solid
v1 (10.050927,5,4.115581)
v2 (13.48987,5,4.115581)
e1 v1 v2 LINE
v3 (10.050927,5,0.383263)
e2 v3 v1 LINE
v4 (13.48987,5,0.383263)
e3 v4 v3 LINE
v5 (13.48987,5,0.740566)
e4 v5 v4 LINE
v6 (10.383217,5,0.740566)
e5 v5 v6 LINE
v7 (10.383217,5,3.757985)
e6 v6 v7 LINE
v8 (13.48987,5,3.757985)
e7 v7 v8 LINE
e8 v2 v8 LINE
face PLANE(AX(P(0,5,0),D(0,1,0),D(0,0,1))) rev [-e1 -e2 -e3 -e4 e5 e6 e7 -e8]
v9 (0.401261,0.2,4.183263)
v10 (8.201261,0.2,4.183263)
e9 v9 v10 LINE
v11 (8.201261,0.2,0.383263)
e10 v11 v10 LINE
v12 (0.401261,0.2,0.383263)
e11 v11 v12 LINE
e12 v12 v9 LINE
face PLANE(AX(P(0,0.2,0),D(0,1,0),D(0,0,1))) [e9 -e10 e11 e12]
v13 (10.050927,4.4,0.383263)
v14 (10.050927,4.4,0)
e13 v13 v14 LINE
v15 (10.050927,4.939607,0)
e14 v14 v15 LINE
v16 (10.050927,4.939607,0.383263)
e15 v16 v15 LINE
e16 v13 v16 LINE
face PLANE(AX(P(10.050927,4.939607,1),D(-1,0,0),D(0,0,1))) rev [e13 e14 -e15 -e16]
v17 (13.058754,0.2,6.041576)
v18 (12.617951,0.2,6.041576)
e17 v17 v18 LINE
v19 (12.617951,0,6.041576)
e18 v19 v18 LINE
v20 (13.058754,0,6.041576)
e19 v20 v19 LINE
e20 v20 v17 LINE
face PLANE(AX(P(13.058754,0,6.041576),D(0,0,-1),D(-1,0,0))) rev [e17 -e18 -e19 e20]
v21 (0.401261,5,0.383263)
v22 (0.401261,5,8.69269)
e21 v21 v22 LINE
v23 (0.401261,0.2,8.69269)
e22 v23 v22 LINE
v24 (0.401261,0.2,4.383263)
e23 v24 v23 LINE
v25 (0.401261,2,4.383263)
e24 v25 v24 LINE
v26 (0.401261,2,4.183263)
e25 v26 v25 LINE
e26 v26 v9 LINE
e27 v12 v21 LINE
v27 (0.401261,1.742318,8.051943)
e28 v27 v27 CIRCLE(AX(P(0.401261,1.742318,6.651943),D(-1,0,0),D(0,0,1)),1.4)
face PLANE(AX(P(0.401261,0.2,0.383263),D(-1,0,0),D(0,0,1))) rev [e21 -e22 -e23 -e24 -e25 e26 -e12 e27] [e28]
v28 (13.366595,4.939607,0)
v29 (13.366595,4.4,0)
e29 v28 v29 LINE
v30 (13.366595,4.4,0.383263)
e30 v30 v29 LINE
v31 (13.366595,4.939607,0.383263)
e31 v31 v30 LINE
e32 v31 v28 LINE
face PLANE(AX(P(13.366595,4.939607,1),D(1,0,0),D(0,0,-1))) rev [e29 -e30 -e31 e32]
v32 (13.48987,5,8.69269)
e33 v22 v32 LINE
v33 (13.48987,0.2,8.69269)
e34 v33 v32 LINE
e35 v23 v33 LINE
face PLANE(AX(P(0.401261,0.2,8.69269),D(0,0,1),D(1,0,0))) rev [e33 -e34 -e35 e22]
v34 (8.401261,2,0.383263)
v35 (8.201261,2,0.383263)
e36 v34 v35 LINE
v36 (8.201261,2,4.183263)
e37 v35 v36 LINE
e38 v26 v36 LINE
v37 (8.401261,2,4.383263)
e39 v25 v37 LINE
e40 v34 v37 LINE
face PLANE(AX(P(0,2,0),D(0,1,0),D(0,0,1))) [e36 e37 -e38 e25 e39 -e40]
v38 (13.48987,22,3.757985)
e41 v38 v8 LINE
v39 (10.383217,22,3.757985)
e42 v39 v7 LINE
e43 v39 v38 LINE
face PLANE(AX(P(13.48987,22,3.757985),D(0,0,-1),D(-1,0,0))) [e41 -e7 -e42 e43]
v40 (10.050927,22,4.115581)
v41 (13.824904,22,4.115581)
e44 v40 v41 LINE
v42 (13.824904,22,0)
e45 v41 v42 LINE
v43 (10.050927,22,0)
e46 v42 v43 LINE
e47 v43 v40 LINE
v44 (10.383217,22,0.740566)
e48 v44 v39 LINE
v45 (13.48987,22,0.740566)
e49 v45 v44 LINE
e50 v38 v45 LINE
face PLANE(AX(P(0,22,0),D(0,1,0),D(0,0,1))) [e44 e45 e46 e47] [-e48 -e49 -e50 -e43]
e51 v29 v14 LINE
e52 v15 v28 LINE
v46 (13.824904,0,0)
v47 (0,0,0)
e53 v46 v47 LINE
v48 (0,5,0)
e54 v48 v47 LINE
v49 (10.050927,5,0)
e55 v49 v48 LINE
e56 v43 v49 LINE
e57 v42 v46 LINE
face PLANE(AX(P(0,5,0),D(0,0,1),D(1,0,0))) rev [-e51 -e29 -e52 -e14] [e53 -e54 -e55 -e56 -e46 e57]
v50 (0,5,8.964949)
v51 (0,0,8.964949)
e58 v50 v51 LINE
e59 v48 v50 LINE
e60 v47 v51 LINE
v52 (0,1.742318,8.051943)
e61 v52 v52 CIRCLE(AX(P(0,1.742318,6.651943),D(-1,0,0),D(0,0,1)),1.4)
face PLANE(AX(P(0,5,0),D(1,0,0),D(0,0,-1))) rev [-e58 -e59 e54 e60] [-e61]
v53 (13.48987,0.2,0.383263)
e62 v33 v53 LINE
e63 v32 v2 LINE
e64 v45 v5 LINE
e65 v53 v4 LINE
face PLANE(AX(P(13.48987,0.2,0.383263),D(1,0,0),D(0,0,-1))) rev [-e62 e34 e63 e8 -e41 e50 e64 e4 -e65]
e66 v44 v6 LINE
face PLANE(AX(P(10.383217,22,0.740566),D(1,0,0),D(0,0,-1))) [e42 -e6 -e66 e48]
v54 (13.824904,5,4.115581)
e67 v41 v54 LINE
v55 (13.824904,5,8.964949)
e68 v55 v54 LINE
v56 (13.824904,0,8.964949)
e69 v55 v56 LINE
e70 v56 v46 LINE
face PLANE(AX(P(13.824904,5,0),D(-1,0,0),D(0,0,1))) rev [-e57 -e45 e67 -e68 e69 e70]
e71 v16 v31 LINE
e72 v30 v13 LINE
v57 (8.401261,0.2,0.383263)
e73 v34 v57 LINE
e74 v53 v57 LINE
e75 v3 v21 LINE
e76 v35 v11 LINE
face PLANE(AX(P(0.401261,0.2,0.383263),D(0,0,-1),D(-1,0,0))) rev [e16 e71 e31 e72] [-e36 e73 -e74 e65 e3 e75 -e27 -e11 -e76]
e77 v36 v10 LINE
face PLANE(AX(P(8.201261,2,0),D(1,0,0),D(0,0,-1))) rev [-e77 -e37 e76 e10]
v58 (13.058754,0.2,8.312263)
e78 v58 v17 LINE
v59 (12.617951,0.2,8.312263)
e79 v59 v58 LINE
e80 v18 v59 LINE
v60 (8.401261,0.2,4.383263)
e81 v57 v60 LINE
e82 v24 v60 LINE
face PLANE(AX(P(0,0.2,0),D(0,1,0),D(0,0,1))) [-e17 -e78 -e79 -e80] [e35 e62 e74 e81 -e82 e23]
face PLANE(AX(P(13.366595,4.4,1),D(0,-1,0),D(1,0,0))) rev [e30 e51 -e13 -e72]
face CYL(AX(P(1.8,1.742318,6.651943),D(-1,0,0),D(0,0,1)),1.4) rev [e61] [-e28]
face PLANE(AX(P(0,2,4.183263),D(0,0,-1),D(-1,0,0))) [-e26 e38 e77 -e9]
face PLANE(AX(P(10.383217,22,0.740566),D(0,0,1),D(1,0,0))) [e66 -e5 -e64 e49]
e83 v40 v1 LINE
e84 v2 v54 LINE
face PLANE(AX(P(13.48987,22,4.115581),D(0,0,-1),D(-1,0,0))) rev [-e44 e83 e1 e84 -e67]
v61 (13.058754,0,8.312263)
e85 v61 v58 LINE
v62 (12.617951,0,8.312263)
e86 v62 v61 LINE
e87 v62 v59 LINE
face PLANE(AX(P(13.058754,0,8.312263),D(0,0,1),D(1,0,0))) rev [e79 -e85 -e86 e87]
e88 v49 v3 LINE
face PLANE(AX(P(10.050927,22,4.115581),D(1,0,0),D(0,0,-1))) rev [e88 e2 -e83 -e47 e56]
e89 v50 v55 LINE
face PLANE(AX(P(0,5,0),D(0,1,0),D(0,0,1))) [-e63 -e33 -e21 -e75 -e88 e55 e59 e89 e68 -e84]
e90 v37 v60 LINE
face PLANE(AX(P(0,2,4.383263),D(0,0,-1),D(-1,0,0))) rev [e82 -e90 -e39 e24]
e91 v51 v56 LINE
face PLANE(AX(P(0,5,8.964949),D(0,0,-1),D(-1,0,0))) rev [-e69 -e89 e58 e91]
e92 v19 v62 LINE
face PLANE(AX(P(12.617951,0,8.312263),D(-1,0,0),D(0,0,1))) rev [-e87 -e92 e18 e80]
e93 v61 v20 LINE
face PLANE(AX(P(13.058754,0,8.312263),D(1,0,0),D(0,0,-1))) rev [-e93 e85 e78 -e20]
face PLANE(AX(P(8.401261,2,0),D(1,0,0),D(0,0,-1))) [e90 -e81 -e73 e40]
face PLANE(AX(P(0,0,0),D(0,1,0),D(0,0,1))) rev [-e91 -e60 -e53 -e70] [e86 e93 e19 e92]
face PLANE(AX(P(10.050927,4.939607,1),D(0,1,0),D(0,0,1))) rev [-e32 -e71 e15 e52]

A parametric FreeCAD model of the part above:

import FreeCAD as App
import Part
import Sketcher
from FreeCAD import Vector
Q = App.Units.Quantity

doc = App.newDocument("Part")
body = doc.addObject("PartDesign::Body", "Body")

sketch1 = body.newObject("Sketcher::SketchObject", "Sketch")
sketch1.AttachmentSupport = (doc.getObject("XZ_Plane"), [""])
sketch1.MapMode = "FlatFace"
sketch1.addGeometry([
    Part.LineSegment(Vector(0, 0, 0), Vector(0, 9, 0)),
    Part.LineSegment(Vector(0, 9, 0), Vector(14, 9, 0)),
    Part.LineSegment(Vector(14, 9, 0), Vector(14, 0, 0)),
    Part.LineSegment(Vector(14, 0, 0), Vector(0, 0, 0)),
], False)
sketch1.addConstraint([
    Sketcher.Constraint("Coincident", 0, 2, 1, 1),
    Sketcher.Constraint("Coincident", 1, 2, 2, 1),
    Sketcher.Constraint("Coincident", 2, 2, 3, 1),
    Sketcher.Constraint("Coincident", 3, 2, 0, 1),
    Sketcher.Constraint("Vertical", 0),
    Sketcher.Constraint("Horizontal", 1),
    Sketcher.Constraint("Vertical", 2),
    Sketcher.Constraint("Horizontal", 3),
    Sketcher.Constraint("Coincident", 3, 2, -1, 1),
    Sketcher.Constraint("DistanceY", 0, 1, 0, 2, Q("8.964949 mm")),
    Sketcher.Constraint("DistanceX", 1, 1, 1, 2, Q("13.824904 mm")),
])
pad1 = body.newObject("PartDesign::Pad", "Pad")
pad1.Profile = sketch1
pad1.Length = 5
pad1.Reversed = True

sketch2 = body.newObject("Sketcher::SketchObject", "Sketch001")
sketch2.AttachmentSupport = (doc.getObject("XZ_Plane"), [""])
sketch2.MapMode = "FlatFace"
sketch2.AttachmentOffset = App.Placement(Vector(0, 0, -5), App.Rotation())
sketch2.addGeometry([
    Part.LineSegment(Vector(0, 0, 0), Vector(0, 9, 0)),
    Part.LineSegment(Vector(0, 9, 0), Vector(13, 9, 0)),
    Part.LineSegment(Vector(13, 9, 0), Vector(13, 0, 0)),
    Part.LineSegment(Vector(13, 0, 0), Vector(0, 0, 0)),
], False)
sketch2.addConstraint([
    Sketcher.Constraint("Coincident", 0, 2, 1, 1),
    Sketcher.Constraint("Coincident", 1, 2, 2, 1),
    Sketcher.Constraint("Coincident", 2, 2, 3, 1),
    Sketcher.Constraint("Coincident", 3, 2, 0, 1),
    Sketcher.Constraint("Vertical", 0),
    Sketcher.Constraint("Horizontal", 1),
    Sketcher.Constraint("Vertical", 2),
    Sketcher.Constraint("Horizontal", 3),
    Sketcher.Constraint("DistanceX", 1, 1, 1, 2, Q("13.088609 mm")),
    Sketcher.Constraint("DistanceY", 0, 1, 0, 2, Q("8.309427 mm")),
    Sketcher.Constraint("DistanceX", -1, 1, 0, 2, Q("0.401261 mm")),
    Sketcher.Constraint("DistanceY", -1, 1, 0, 2, Q("8.69269 mm")),
])
pocket1 = body.newObject("PartDesign::Pocket", "Pocket")
pocket1.Profile = sketch2
pocket1.Length = 4.8
pocket1.Reversed = True

sketch3 = body.newObject("Sketcher::SketchObject", "Sketch002")
sketch3.AttachmentSupport = (doc.getObject("XZ_Plane"), [""])
sketch3.MapMode = "FlatFace"
sketch3.AttachmentOffset = App.Placement(Vector(0, 0, -0.2), App.Rotation())
sketch3.addGeometry([
    Part.LineSegment(Vector(8.4, 0.38, 0), Vector(8.2, 0.38, 0)),
    Part.LineSegment(Vector(8.2, 0.38, 0), Vector(8.2, 4.18, 0)),
    Part.LineSegment(Vector(8.2, 4.18, 0), Vector(0.4, 4.18, 0)),
    Part.LineSegment(Vector(0.4, 4.18, 0), Vector(0.4, 4.38, 0)),
    Part.LineSegment(Vector(0.4, 4.38, 0), Vector(8.4, 4.38, 0)),
    Part.LineSegment(Vector(8.4, 4.38, 0), Vector(8.4, 0.38, 0)),
], False)
sketch3.addConstraint([
    Sketcher.Constraint("Coincident", 0, 2, 1, 1),
    Sketcher.Constraint("Coincident", 1, 2, 2, 1),
    Sketcher.Constraint("Coincident", 2, 2, 3, 1),
    Sketcher.Constraint("Coincident", 3, 2, 4, 1),
    Sketcher.Constraint("Coincident", 4, 2, 5, 1),
    Sketcher.Constraint("Coincident", 5, 2, 0, 1),
    Sketcher.Constraint("Horizontal", 0),
    Sketcher.Constraint("Vertical", 1),
    Sketcher.Constraint("Horizontal", 2),
    Sketcher.Constraint("Vertical", 3),
    Sketcher.Constraint("Horizontal", 4),
    Sketcher.Constraint("Vertical", 5),
    Sketcher.Constraint("Equal", 0, 3),
    Sketcher.Constraint("DistanceX", 4, 1, 4, 2, Q("8 mm")),
    Sketcher.Constraint("DistanceY", 5, 2, 5, 1, Q("4 mm")),
    Sketcher.Constraint("DistanceX", 0, 2, 0, 1, Q("0.2 mm")),
    Sketcher.Constraint("DistanceX", -1, 1, 0, 2, Q("8.201261 mm")),
    Sketcher.Constraint("DistanceY", -1, 1, 0, 2, Q("0.383263 mm")),
])
pad2 = body.newObject("PartDesign::Pad", "Pad001")
pad2.Profile = sketch3
pad2.Length = 1.8
pad2.Reversed = True

sketch4 = body.newObject("Sketcher::SketchObject", "Sketch003")
sketch4.AttachmentSupport = (doc.getObject("YZ_Plane"), [""])
sketch4.MapMode = "FlatFace"
sketch4.addGeometry(Part.Circle(Vector(1.7, 6.7, 0), Vector(0, 0, 1), 1.4), False)
sketch4.addConstraint([
    Sketcher.Constraint("Diameter", 0, Q("2.8 mm")),
    Sketcher.Constraint("DistanceX", -1, 1, 0, 3, Q("1.742318 mm")),
    Sketcher.Constraint("DistanceY", -1, 1, 0, 3, Q("6.651943 mm")),
])
pocket2 = body.newObject("PartDesign::Pocket", "Pocket001")
pocket2.Profile = sketch4
pocket2.Length = 1.8
pocket2.Reversed = True

sketch5 = body.newObject("Sketcher::SketchObject", "Sketch004")
sketch5.AttachmentSupport = (doc.getObject("XZ_Plane"), [""])
sketch5.MapMode = "FlatFace"
sketch5.AttachmentOffset = App.Placement(Vector(0, 0, -0.2), App.Rotation())
sketch5.addGeometry([
    Part.LineSegment(Vector(12.62, 6.04, 0), Vector(12.62, 8.31, 0)),
    Part.LineSegment(Vector(12.62, 8.31, 0), Vector(13.06, 8.31, 0)),
    Part.LineSegment(Vector(13.06, 8.31, 0), Vector(13.06, 6.04, 0)),
    Part.LineSegment(Vector(13.06, 6.04, 0), Vector(12.62, 6.04, 0)),
], False)
sketch5.addConstraint([
    Sketcher.Constraint("Coincident", 0, 2, 1, 1),
    Sketcher.Constraint("Coincident", 1, 2, 2, 1),
    Sketcher.Constraint("Coincident", 2, 2, 3, 1),
    Sketcher.Constraint("Coincident", 3, 2, 0, 1),
    Sketcher.Constraint("Vertical", 0),
    Sketcher.Constraint("Horizontal", 1),
    Sketcher.Constraint("Vertical", 2),
    Sketcher.Constraint("Horizontal", 3),
    Sketcher.Constraint("DistanceX", 1, 1, 1, 2, Q("0.440803 mm")),
    Sketcher.Constraint("DistanceY", 0, 1, 0, 2, Q("2.270687 mm")),
    Sketcher.Constraint("DistanceX", -1, 1, 0, 2, Q("12.617951 mm")),
    Sketcher.Constraint("DistanceY", -1, 1, 0, 2, Q("8.312263 mm")),
])
pocket3 = body.newObject("PartDesign::Pocket", "Pocket002")
pocket3.Profile = sketch5
pocket3.Type = "ThroughAll"
pocket3.Reversed = True

sketch6 = body.newObject("Sketcher::SketchObject", "Sketch005")
sketch6.AttachmentSupport = (doc.getObject("XZ_Plane"), [""])
sketch6.MapMode = "FlatFace"
sketch6.AttachmentOffset = App.Placement(Vector(0, 0, -5), App.Rotation())
sketch6.addGeometry([
    Part.LineSegment(Vector(10.1, 4.1, 0), Vector(13.8, 4.1, 0)),
    Part.LineSegment(Vector(13.8, 4.1, 0), Vector(13.8, 0, 0)),
    Part.LineSegment(Vector(13.8, 0, 0), Vector(10.1, 0, 0)),
    Part.LineSegment(Vector(10.1, 0, 0), Vector(10.1, 4.1, 0)),
    Part.LineSegment(Vector(10.4, 3.8, 0), Vector(10.4, 0.7, 0)),
    Part.LineSegment(Vector(10.4, 0.7, 0), Vector(13.5, 0.7, 0)),
    Part.LineSegment(Vector(13.5, 0.7, 0), Vector(13.5, 3.8, 0)),
    Part.LineSegment(Vector(13.5, 3.8, 0), Vector(10.4, 3.8, 0)),
], False)
sketch6.addConstraint([
    Sketcher.Constraint("Coincident", 0, 2, 1, 1),
    Sketcher.Constraint("Coincident", 1, 2, 2, 1),
    Sketcher.Constraint("Coincident", 2, 2, 3, 1),
    Sketcher.Constraint("Coincident", 3, 2, 0, 1),
    Sketcher.Constraint("Coincident", 4, 2, 5, 1),
    Sketcher.Constraint("Coincident", 5, 2, 6, 1),
    Sketcher.Constraint("Coincident", 6, 2, 7, 1),
    Sketcher.Constraint("Coincident", 7, 2, 4, 1),
    Sketcher.Constraint("Horizontal", 0),
    Sketcher.Constraint("Vertical", 1),
    Sketcher.Constraint("Horizontal", 2),
    Sketcher.Constraint("Vertical", 3),
    Sketcher.Constraint("Vertical", 4),
    Sketcher.Constraint("Horizontal", 5),
    Sketcher.Constraint("Vertical", 6),
    Sketcher.Constraint("Horizontal", 7),
    Sketcher.Constraint("PointOnObject", 1, 2, -1),
    Sketcher.Constraint("DistanceY", 1, 2, 1, 1, Q("4.115581 mm")),
    Sketcher.Constraint("DistanceY", 4, 2, 4, 1, Q("3.017419 mm")),
    Sketcher.Constraint("DistanceX", 0, 1, 0, 2, Q("3.773977 mm")),
    Sketcher.Constraint("DistanceX", 5, 1, 5, 2, Q("3.106653 mm")),
    Sketcher.Constraint("DistanceX", -1, 1, 5, 2, Q("13.48987 mm")),
    Sketcher.Constraint("DistanceX", 2, 2, 4, 2, Q("0.33229 mm")),
    Sketcher.Constraint("DistanceY", -1, 1, 4, 2, Q("0.740566 mm")),
])
pad3 = body.newObject("PartDesign::Pad", "Pad002")
pad3.Profile = sketch6
pad3.Length = 17
pad3.Reversed = True

sketch7 = body.newObject("Sketcher::SketchObject", "Sketch006")
sketch7.AttachmentSupport = (doc.getObject("XY_Plane"), [""])
sketch7.MapMode = "FlatFace"
sketch7.addGeometry([
    Part.LineSegment(Vector(13.4, 4.9, 0), Vector(13.4, 4.4, 0)),
    Part.LineSegment(Vector(13.4, 4.4, 0), Vector(10.1, 4.4, 0)),
    Part.LineSegment(Vector(10.1, 4.4, 0), Vector(10.1, 4.9, 0)),
    Part.LineSegment(Vector(10.1, 4.9, 0), Vector(13.4, 4.9, 0)),
], False)
sketch7.addConstraint([
    Sketcher.Constraint("Coincident", 0, 2, 1, 1),
    Sketcher.Constraint("Coincident", 1, 2, 2, 1),
    Sketcher.Constraint("Coincident", 2, 2, 3, 1),
    Sketcher.Constraint("Coincident", 3, 2, 0, 1),
    Sketcher.Constraint("Vertical", 0),
    Sketcher.Constraint("Horizontal", 1),
    Sketcher.Constraint("Vertical", 2),
    Sketcher.Constraint("Horizontal", 3),
    Sketcher.Constraint("DistanceY", -1, 1, 0, 2, Q("4.4 mm")),
    Sketcher.Constraint("DistanceX", 1, 2, 1, 1, Q("3.315668 mm")),
    Sketcher.Constraint("DistanceY", 0, 2, 0, 1, Q("0.539607 mm")),
    Sketcher.Constraint("DistanceX", -1, 1, 0, 2, Q("13.366595 mm")),
])
pocket4 = body.newObject("PartDesign::Pocket", "Pocket003")
pocket4.Profile = sketch7
pocket4.Length = 1
pocket4.Reversed = True

doc.recompute()
